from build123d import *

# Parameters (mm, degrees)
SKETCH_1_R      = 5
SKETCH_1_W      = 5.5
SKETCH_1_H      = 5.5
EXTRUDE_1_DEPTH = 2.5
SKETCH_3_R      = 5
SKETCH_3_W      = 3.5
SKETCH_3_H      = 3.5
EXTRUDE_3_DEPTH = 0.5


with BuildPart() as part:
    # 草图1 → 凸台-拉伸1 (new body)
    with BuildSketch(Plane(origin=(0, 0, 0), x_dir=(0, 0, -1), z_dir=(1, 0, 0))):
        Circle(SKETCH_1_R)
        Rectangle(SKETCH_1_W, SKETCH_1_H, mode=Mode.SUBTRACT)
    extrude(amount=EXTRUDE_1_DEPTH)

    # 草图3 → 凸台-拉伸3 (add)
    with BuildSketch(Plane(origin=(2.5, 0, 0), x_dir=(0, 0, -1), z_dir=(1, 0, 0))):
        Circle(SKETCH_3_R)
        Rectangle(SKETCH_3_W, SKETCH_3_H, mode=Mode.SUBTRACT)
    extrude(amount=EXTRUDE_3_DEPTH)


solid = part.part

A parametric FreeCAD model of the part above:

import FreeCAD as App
import Part
import Sketcher
from FreeCAD import Vector


def add_polygon(sketch, points):
    """Adds a closed chain of lines whose ends are joined by coincident constraints."""
    first, n = sketch.GeometryCount, len(points)
    for a, b in zip(points, points[1:] + points[:1]):
        sketch.addGeometry(Part.LineSegment(App.Vector(*a, 0), App.Vector(*b, 0)), False)
    for i in range(n):
        sketch.addConstraint(Sketcher.Constraint("Coincident", first + i, 2, first + (i + 1) % n, 1))

doc = App.newDocument("Part")
body = doc.addObject("PartDesign::Body", "Body")

# Sketch on YZ plane
sketch1 = body.newObject("Sketcher::SketchObject", "Sketch")
sketch1.AttachmentSupport = (doc.getObject("YZ_Plane"), [""])
sketch1.MapMode = "FlatFace"
sketch1.addGeometry(Part.Circle(Vector(0, 0, 0), Vector(0, 0, 1), 5), False)  # 0
add_polygon(sketch1, [(-3, -3), (-3, 3), (3, 3), (3, -3)])  # lines 1-4
sketch1.addConstraint(Sketcher.Constraint("Vertical", 1))
sketch1.addConstraint(Sketcher.Constraint("Horizontal", 2))
sketch1.addConstraint(Sketcher.Constraint("Vertical", 3))
sketch1.addConstraint(Sketcher.Constraint("Horizontal", 4))
sketch1.addConstraint(Sketcher.Constraint("Coincident", 0, 3, -1, 1))
sketch1.addConstraint(Sketcher.Constraint("Symmetric", 1, 2, 3, 2, -1, 1))
sketch1.addConstraint(Sketcher.Constraint("Equal", 4, 1))
sketch1.addConstraint(Sketcher.Constraint("Diameter", 0, 10.0))
sketch1.addConstraint(Sketcher.Constraint("DistanceX", 2, 1, 2, 2, 5.5))
pad1 = body.newObject("PartDesign::Pad", "Pad")
pad1.Profile = sketch1
pad1.Length = 2.5

# Sketch on YZ plane
sketch2 = body.newObject("Sketcher::SketchObject", "Sketch001")
sketch2.AttachmentSupport = (doc.getObject("YZ_Plane"), [""])
sketch2.MapMode = "FlatFace"
sketch2.AttachmentOffset = App.Placement(Vector(0, 0, 2.5), App.Rotation())
sketch2.addGeometry(Part.Circle(Vector(0, 0, 0), Vector(0, 0, 1), 5), False)  # 0
add_polygon(sketch2, [(-1.8, -1.8), (-1.8, 1.8), (1.8, 1.8), (1.8, -1.8)])  # lines 1-4
sketch2.addConstraint(Sketcher.Constraint("Vertical", 1))
sketch2.addConstraint(Sketcher.Constraint("Horizontal", 2))
sketch2.addConstraint(Sketcher.Constraint("Vertical", 3))
sketch2.addConstraint(Sketcher.Constraint("Horizontal", 4))
sketch2.addConstraint(Sketcher.Constraint("Coincident", 0, 3, -1, 1))
sketch2.addConstraint(Sketcher.Constraint("Symmetric", 1, 2, 3, 2, -1, 1))
sketch2.addConstraint(Sketcher.Constraint("Equal", 4, 1))
sketch2.addConstraint(Sketcher.Constraint("Diameter", 0, 10.0))
sketch2.addConstraint(Sketcher.Constraint("DistanceX", 2, 1, 2, 2, 3.5))
pad2 = body.newObject("PartDesign::Pad", "Pad001")
pad2.Profile = sketch2
pad2.Length = 0.5

doc.recompute()
